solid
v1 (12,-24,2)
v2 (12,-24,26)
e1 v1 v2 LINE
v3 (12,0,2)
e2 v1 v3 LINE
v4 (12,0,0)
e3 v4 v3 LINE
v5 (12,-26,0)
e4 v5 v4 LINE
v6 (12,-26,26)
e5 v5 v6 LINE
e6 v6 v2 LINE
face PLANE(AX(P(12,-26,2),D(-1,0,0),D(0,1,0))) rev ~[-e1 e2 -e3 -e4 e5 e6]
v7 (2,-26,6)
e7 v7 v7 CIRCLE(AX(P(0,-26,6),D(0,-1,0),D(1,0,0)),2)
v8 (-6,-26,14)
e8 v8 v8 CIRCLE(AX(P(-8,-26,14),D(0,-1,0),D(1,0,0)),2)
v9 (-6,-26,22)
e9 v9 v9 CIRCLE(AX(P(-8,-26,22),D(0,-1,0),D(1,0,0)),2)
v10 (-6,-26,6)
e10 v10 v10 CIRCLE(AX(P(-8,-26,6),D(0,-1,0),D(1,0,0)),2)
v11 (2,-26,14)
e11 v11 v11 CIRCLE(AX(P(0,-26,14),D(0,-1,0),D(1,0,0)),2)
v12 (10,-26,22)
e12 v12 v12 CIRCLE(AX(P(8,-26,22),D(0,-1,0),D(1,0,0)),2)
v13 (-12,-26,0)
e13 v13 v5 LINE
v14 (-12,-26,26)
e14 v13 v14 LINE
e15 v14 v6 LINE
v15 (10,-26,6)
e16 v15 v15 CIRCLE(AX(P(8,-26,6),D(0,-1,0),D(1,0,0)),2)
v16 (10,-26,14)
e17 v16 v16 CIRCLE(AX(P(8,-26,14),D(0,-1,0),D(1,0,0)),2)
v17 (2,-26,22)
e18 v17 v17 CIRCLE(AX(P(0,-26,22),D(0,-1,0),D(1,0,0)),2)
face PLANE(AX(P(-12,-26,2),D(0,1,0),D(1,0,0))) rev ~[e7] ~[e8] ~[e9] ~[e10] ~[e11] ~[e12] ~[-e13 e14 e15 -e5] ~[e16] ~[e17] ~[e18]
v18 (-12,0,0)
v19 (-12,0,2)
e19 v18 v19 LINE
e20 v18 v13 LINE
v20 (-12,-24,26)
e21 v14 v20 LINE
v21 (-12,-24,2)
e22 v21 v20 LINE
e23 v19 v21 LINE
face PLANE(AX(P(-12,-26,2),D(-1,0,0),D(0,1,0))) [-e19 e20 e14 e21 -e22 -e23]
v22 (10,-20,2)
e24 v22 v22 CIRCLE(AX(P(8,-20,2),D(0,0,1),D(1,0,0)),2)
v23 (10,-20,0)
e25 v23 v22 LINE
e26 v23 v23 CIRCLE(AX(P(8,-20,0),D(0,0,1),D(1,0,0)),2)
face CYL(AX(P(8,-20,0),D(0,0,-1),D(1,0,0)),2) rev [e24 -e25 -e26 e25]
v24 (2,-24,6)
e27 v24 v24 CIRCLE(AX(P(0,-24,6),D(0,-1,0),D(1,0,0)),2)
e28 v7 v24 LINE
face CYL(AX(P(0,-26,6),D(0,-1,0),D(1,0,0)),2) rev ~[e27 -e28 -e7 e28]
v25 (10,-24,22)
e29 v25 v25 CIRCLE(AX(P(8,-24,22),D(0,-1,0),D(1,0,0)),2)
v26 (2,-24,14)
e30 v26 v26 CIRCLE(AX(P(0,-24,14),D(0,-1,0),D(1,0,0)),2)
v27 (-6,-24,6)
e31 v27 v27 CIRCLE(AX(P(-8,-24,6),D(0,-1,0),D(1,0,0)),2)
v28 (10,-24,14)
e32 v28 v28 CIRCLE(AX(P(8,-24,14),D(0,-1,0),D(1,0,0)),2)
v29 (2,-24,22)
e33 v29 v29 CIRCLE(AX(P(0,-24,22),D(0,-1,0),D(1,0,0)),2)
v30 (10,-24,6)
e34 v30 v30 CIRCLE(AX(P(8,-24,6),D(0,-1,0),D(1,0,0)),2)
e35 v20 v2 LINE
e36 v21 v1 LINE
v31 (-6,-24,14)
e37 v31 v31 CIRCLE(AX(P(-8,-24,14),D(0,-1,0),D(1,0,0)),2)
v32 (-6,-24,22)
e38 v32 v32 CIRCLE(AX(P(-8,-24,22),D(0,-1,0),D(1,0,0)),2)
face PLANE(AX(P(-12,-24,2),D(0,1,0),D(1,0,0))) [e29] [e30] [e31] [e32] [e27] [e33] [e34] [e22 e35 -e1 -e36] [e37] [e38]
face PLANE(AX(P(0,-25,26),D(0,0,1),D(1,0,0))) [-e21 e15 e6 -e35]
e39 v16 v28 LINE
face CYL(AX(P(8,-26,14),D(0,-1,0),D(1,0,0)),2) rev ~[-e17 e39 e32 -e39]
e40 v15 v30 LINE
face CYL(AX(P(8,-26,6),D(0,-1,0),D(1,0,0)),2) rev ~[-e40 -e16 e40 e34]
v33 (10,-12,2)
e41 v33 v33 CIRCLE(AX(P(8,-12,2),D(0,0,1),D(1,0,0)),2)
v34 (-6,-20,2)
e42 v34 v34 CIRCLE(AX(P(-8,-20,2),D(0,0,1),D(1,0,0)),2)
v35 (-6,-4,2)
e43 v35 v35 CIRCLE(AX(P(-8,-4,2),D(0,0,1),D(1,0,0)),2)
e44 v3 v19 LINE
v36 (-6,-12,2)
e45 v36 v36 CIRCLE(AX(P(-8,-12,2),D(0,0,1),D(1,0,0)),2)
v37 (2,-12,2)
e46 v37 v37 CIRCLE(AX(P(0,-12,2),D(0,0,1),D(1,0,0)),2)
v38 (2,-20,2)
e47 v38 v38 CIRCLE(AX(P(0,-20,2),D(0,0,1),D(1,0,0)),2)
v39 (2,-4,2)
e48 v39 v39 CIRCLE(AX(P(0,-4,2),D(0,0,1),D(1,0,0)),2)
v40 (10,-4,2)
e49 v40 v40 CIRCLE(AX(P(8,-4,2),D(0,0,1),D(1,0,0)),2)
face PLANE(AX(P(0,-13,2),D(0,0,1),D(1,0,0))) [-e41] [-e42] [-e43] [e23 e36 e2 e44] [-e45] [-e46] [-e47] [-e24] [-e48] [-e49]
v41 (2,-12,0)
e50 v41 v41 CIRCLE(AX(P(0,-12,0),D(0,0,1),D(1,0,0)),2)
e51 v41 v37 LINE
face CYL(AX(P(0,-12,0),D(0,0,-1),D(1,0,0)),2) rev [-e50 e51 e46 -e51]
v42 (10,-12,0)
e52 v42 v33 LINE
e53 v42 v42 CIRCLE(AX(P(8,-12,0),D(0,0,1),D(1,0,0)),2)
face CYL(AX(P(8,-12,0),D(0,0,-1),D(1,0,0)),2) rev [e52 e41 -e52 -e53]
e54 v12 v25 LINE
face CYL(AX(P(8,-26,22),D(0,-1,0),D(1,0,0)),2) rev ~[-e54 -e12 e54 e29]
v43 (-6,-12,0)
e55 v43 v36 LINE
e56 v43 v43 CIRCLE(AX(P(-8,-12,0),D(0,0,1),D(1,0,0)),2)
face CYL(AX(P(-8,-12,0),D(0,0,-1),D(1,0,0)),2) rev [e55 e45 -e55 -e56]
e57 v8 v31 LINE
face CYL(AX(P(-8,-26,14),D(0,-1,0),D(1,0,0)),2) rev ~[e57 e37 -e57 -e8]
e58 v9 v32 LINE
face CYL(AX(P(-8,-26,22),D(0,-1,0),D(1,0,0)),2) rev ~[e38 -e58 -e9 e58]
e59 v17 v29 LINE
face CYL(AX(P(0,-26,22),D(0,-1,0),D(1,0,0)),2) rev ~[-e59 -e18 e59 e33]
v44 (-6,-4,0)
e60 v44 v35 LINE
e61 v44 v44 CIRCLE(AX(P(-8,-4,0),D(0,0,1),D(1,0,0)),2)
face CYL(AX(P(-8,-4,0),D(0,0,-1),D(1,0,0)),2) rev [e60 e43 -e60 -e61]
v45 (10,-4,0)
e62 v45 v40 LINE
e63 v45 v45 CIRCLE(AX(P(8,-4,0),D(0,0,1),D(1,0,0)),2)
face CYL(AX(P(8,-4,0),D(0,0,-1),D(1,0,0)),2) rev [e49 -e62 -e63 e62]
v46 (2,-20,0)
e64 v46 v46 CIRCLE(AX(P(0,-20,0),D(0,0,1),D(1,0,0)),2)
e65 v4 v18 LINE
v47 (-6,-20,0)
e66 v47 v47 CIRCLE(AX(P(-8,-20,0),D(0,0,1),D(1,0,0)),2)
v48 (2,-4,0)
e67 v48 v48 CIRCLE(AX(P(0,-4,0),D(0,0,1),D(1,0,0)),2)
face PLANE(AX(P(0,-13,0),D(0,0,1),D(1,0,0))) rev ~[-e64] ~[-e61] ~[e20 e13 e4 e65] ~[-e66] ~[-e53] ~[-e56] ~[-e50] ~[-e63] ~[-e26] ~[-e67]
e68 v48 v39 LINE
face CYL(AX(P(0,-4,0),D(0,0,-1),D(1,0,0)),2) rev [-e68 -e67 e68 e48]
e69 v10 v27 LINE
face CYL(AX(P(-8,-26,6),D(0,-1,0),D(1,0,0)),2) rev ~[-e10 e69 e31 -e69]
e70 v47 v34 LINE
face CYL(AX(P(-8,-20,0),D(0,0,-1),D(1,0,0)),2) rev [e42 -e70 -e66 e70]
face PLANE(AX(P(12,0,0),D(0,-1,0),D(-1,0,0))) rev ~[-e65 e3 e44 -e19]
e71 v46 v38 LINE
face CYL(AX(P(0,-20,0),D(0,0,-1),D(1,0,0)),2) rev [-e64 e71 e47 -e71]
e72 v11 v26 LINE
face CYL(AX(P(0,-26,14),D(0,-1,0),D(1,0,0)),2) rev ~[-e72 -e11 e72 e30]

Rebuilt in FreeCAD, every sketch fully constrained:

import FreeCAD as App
import Part
import Sketcher

doc = App.newDocument("Part")
body = doc.addObject("PartDesign::Body", "Body")

# Sketch on XY plane
sketch1 = doc.addObject("Sketcher::SketchObject", "Sketch")
body.addObject(sketch1)
sketch1.AttachmentSupport = (doc.XY_Plane, [""])
sketch1.MapMode = "FlatFace"
sketch1.addGeometry(Part.LineSegment(App.Vector(12, 0, 0), App.Vector(-12, 0, 0)), False)
sketch1.addGeometry(Part.LineSegment(App.Vector(-12, 0, 0), App.Vector(-12, -26, 0)), False)
sketch1.addGeometry(Part.LineSegment(App.Vector(-12, -26, 0), App.Vector(12, -26, 0)), False)
sketch1.addGeometry(Part.LineSegment(App.Vector(12, -26, 0), App.Vector(12, 0, 0)), False)
sketch1.addGeometry(Part.Circle(App.Vector(-8, -20, 0), App.Vector(0, 0, 1), 2), False)
sketch1.addGeometry(Part.Circle(App.Vector(0, -20, 0), App.Vector(0, 0, 1), 2), False)
sketch1.addGeometry(Part.Circle(App.Vector(8, -20, 0), App.Vector(0, 0, 1), 2), False)
sketch1.addGeometry(Part.Circle(App.Vector(-8, -12, 0), App.Vector(0, 0, 1), 2), False)
sketch1.addGeometry(Part.Circle(App.Vector(-8, -4, 0), App.Vector(0, 0, 1), 2), False)
sketch1.addGeometry(Part.Circle(App.Vector(0, -12, 0), App.Vector(0, 0, 1), 2), False)
sketch1.addGeometry(Part.Circle(App.Vector(8, -12, 0), App.Vector(0, 0, 1), 2), False)
sketch1.addGeometry(Part.Circle(App.Vector(0, -4, 0), App.Vector(0, 0, 1), 2), False)
sketch1.addGeometry(Part.Circle(App.Vector(8, -4, 0), App.Vector(0, 0, 1), 2), False)
sketch1.addConstraint(Sketcher.Constraint("Coincident", 0, 2, 1, 1))
sketch1.addConstraint(Sketcher.Constraint("Coincident", 1, 2, 2, 1))
sketch1.addConstraint(Sketcher.Constraint("Coincident", 2, 2, 3, 1))
sketch1.addConstraint(Sketcher.Constraint("Coincident", 3, 2, 0, 1))
sketch1.addConstraint(Sketcher.Constraint("Horizontal", 0))
sketch1.addConstraint(Sketcher.Constraint("Vertical", 1))
sketch1.addConstraint(Sketcher.Constraint("Horizontal", 2))
sketch1.addConstraint(Sketcher.Constraint("Vertical", 3))
sketch1.addConstraint(Sketcher.Constraint("Equal", 4, 5))
sketch1.addConstraint(Sketcher.Constraint("Equal", 5, 6))
sketch1.addConstraint(Sketcher.Constraint("Equal", 6, 7))
sketch1.addConstraint(Sketcher.Constraint("Equal", 7, 8))
sketch1.addConstraint(Sketcher.Constraint("Equal", 8, 9))
sketch1.addConstraint(Sketcher.Constraint("Equal", 9, 10))
sketch1.addConstraint(Sketcher.Constraint("Equal", 10, 11))
sketch1.addConstraint(Sketcher.Constraint("Equal", 11, 12))
sketch1.addConstraint(Sketcher.Constraint("Symmetric", 0, 2, 3, 2, -1, 1))
sketch1.addConstraint(Sketcher.Constraint("Symmetric", 4, 3, 6, 3, -2))
sketch1.addConstraint(Sketcher.Constraint("Symmetric", 7, 3, 10, 3, -2))
sketch1.addConstraint(Sketcher.Constraint("Symmetric", 8, 3, 12, 3, -2))
sketch1.addConstraint(Sketcher.Constraint("PointOnObject", 5, 3, -2))
sketch1.addConstraint(Sketcher.Constraint("PointOnObject", 9, 3, -2))
sketch1.addConstraint(Sketcher.Constraint("PointOnObject", 11, 3, -2))
sketch1.addConstraint(Sketcher.Constraint("Horizontal", 4, 3, 5, 3))
sketch1.addConstraint(Sketcher.Constraint("Horizontal", 7, 3, 9, 3))
sketch1.addConstraint(Sketcher.Constraint("Horizontal", 8, 3, 11, 3))
sketch1.addConstraint(Sketcher.Constraint("Vertical", 4, 3, 7, 3))
sketch1.addConstraint(Sketcher.Constraint("Vertical", 7, 3, 8, 3))
sketch1.addConstraint(Sketcher.Constraint("Diameter", 4, 4.0))
sketch1.addConstraint(Sketcher.Constraint("DistanceX", 0, 2, 0, 1, 24.0))
sketch1.addConstraint(Sketcher.Constraint("DistanceY", 1, 2, 1, 1, 26.0))
sketch1.addConstraint(Sketcher.Constraint("DistanceX", 4, 3, -1, 1, 8.0))
sketch1.addConstraint(Sketcher.Constraint("DistanceY", 4, 3, -1, 1, 20.0))
sketch1.addConstraint(Sketcher.Constraint("DistanceY", 7, 3, -1, 1, 12.0))
sketch1.addConstraint(Sketcher.Constraint("DistanceY", 8, 3, -1, 1, 4.0))
pad1 = doc.addObject("PartDesign::Pad", "Pad")
body.addObject(pad1)
pad1.Profile = sketch1
pad1.Length = 2

# Sketch on XY plane
sketch2 = doc.addObject("Sketcher::SketchObject", "Sketch001")
body.addObject(sketch2)
sketch2.AttachmentSupport = (doc.XY_Plane, [""])
sketch2.MapMode = "FlatFace"
sketch2.AttachmentOffset = App.Placement(App.Vector(0, 0, 2), App.Rotation())
sketch2.addGeometry(Part.LineSegment(App.Vector(-12, -24, 0), App.Vector(-12, -26, 0)), False)
sketch2.addGeometry(Part.LineSegment(App.Vector(-12, -26, 0), App.Vector(12, -26, 0)), False)
sketch2.addGeometry(Part.LineSegment(App.Vector(12, -26, 0), App.Vector(12, -24, 0)), False)
sketch2.addGeometry(Part.LineSegment(App.Vector(12, -24, 0), App.Vector(-12, -24, 0)), False)
sketch2.addConstraint(Sketcher.Constraint("Coincident", 0, 2, 1, 1))
sketch2.addConstraint(Sketcher.Constraint("Coincident", 1, 2, 2, 1))
sketch2.addConstraint(Sketcher.Constraint("Coincident", 2, 2, 3, 1))
sketch2.addConstraint(Sketcher.Constraint("Coincident", 3, 2, 0, 1))
sketch2.addConstraint(Sketcher.Constraint("Vertical", 0))
sketch2.addConstraint(Sketcher.Constraint("Horizontal", 1))
sketch2.addConstraint(Sketcher.Constraint("Vertical", 2))
sketch2.addConstraint(Sketcher.Constraint("Horizontal", 3))
sketch2.addConstraint(Sketcher.Constraint("DistanceX", 1, 1, 1, 2, 24.0))
sketch2.addConstraint(Sketcher.Constraint("DistanceY", 0, 2, 0, 1, 2.0))
sketch2.addConstraint(Sketcher.Constraint("DistanceX", 0, 2, -1, 1, 12.0))
sketch2.addConstraint(Sketcher.Constraint("DistanceY", 0, 2, -1, 1, 26.0))
pad2 = doc.addObject("PartDesign::Pad", "Pad001")
body.addObject(pad2)
pad2.Profile = sketch2
pad2.Length = 24

# Sketch on XZ plane
sketch3 = doc.addObject("Sketcher::SketchObject", "Sketch002")
body.addObject(sketch3)
sketch3.AttachmentSupport = (doc.XZ_Plane, [""])
sketch3.MapMode = "FlatFace"
sketch3.AttachmentOffset = App.Placement(App.Vector(0, 0, 26), App.Rotation())
sketch3.addGeometry(Part.Circle(App.Vector(-8, 22, 0), App.Vector(0, 0, 1), 2), False)
sketch3.addGeometry(Part.Circle(App.Vector(-8, 14, 0), App.Vector(0, 0, 1), 2), False)
sketch3.addGeometry(Part.Circle(App.Vector(-8, 6, 0), App.Vector(0, 0, 1), 2), False)
sketch3.addGeometry(Part.Circle(App.Vector(0, 22, 0), App.Vector(0, 0, 1), 2), False)
sketch3.addGeometry(Part.Circle(App.Vector(0, 14, 0), App.Vector(0, 0, 1), 2), False)
sketch3.addGeometry(Part.Circle(App.Vector(0, 6, 0), App.Vector(0, 0, 1), 2), False)
sketch3.addGeometry(Part.Circle(App.Vector(8, 22, 0), App.Vector(0, 0, 1), 2), False)
sketch3.addGeometry(Part.Circle(App.Vector(8, 14, 0), App.Vector(0, 0, 1), 2), False)
sketch3.addGeometry(Part.Circle(App.Vector(8, 6, 0), App.Vector(0, 0, 1), 2), False)
sketch3.addConstraint(Sketcher.Constraint("Equal", 0, 1))
sketch3.addConstraint(Sketcher.Constraint("Equal", 1, 2))
sketch3.addConstraint(Sketcher.Constraint("Equal", 2, 3))
sketch3.addConstraint(Sketcher.Constraint("Equal", 3, 4))
sketch3.addConstraint(Sketcher.Constraint("Equal", 4, 5))
sketch3.addConstraint(Sketcher.Constraint("Equal", 5, 6))
sketch3.addConstraint(Sketcher.Constraint("Equal", 6, 7))
sketch3.addConstraint(Sketcher.Constraint("Equal", 7, 8))
sketch3.addConstraint(Sketcher.Constraint("Symmetric", 0, 3, 6, 3, -2))
sketch3.addConstraint(Sketcher.Constraint("Symmetric", 1, 3, 7, 3, -2))
sketch3.addConstraint(Sketcher.Constraint("Symmetric", 2, 3, 8, 3, -2))
sketch3.addConstraint(Sketcher.Constraint("PointOnObject", 3, 3, -2))
sketch3.addConstraint(Sketcher.Constraint("PointOnObject", 4, 3, -2))
sketch3.addConstraint(Sketcher.Constraint("PointOnObject", 5, 3, -2))
sketch3.addConstraint(Sketcher.Constraint("Horizontal", 0, 3, 3, 3))
sketch3.addConstraint(Sketcher.Constraint("Horizontal", 1, 3, 4, 3))
sketch3.addConstraint(Sketcher.Constraint("Horizontal", 2, 3, 5, 3))
sketch3.addConstraint(Sketcher.Constraint("Vertical", 0, 3, 1, 3))
sketch3.addConstraint(Sketcher.Constraint("Vertical", 1, 3, 2, 3))
sketch3.addConstraint(Sketcher.Constraint("Diameter", 0, 4.0))
sketch3.addConstraint(Sketcher.Constraint("DistanceX", 0, 3, -1, 1, 8.0))
sketch3.addConstraint(Sketcher.Constraint("DistanceY", -1, 1, 0, 3, 22.0))
sketch3.addConstraint(Sketcher.Constraint("DistanceY", -1, 1, 1, 3, 14.0))
sketch3.addConstraint(Sketcher.Constraint("DistanceY", -1, 1, 2, 3, 6.0))
pocket1 = doc.addObject("PartDesign::Pocket", "Pocket")
body.addObject(pocket1)
pocket1.Profile = sketch3
pocket1.Length = 25

doc.recompute()
